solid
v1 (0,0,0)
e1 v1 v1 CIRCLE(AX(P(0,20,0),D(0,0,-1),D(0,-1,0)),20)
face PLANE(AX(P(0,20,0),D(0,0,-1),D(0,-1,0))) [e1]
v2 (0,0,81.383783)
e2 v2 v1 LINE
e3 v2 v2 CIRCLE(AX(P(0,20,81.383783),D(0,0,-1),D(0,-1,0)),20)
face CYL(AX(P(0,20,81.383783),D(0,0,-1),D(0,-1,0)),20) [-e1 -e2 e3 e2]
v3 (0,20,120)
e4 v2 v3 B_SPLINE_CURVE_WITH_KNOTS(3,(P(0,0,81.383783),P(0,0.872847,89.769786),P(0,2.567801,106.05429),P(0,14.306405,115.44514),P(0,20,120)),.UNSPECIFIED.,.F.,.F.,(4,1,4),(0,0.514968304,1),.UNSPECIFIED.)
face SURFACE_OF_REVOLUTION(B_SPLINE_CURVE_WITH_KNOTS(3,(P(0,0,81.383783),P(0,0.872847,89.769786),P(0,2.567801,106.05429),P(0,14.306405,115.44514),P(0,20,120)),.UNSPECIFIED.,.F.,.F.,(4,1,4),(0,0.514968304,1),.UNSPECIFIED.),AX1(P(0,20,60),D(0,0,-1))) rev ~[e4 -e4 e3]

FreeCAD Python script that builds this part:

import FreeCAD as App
import Part
import Sketcher

doc = App.newDocument("Part")
body = doc.addObject("PartDesign::Body", "Body")

sketch1 = body.newObject("Sketcher::SketchObject", "Sketch")
sketch1.AttachmentSupport = (doc.getObject("YZ_Plane"), [""])
sketch1.MapMode = "FlatFace"
sketch1.addGeometry([
    Part.LineSegment(App.Vector(0, 81.383783, 0), App.Vector(0, 0, 0)),
    Part.LineSegment(App.Vector(0, 0, 0), App.Vector(20, 0, 0)),
    Part.LineSegment(App.Vector(20, 0, 0), App.Vector(20, 120, 0)),
    Part.BSplineCurve([App.Vector(0, 81.383783, 0), App.Vector(0.872847, 89.769786, 0), App.Vector(2.567801, 106.05429, 0), App.Vector(14.306405, 115.44514, 0), App.Vector(20, 120, 0)], [4, 1, 4], [0, 0.514968304, 1], False, 3, [1, 1, 1, 1, 1], False),
], False)
sketch1.addGeometry(Part.LineSegment(App.Vector(20, 120, 0), App.Vector(20, 0, 0)), True)
sketch1.addConstraint([
    Sketcher.Constraint("Block", 3),
    Sketcher.Constraint("Coincident", 0, 2, 1, 1),
    Sketcher.Constraint("Coincident", 1, 2, 2, 1),
    Sketcher.Constraint("Coincident", 2, 2, 3, 2),
    Sketcher.Constraint("Coincident", 3, 1, 0, 1),
    Sketcher.Constraint("Vertical", 0),
    Sketcher.Constraint("Horizontal", 1),
    Sketcher.Constraint("Vertical", 2),
    Sketcher.Constraint("Vertical", 4),
    Sketcher.Constraint("Coincident", 4, 1, 2, 2),
    Sketcher.Constraint("PointOnObject", 1, 2, -1),
    Sketcher.Constraint("PointOnObject", 4, 2, -1),
])
revolution = body.newObject("PartDesign::Revolution", "Revolution")
revolution.Profile = sketch1
revolution.ReferenceAxis = (sketch1, ["Axis0"])
revolution.Angle = 360

doc.recompute()
